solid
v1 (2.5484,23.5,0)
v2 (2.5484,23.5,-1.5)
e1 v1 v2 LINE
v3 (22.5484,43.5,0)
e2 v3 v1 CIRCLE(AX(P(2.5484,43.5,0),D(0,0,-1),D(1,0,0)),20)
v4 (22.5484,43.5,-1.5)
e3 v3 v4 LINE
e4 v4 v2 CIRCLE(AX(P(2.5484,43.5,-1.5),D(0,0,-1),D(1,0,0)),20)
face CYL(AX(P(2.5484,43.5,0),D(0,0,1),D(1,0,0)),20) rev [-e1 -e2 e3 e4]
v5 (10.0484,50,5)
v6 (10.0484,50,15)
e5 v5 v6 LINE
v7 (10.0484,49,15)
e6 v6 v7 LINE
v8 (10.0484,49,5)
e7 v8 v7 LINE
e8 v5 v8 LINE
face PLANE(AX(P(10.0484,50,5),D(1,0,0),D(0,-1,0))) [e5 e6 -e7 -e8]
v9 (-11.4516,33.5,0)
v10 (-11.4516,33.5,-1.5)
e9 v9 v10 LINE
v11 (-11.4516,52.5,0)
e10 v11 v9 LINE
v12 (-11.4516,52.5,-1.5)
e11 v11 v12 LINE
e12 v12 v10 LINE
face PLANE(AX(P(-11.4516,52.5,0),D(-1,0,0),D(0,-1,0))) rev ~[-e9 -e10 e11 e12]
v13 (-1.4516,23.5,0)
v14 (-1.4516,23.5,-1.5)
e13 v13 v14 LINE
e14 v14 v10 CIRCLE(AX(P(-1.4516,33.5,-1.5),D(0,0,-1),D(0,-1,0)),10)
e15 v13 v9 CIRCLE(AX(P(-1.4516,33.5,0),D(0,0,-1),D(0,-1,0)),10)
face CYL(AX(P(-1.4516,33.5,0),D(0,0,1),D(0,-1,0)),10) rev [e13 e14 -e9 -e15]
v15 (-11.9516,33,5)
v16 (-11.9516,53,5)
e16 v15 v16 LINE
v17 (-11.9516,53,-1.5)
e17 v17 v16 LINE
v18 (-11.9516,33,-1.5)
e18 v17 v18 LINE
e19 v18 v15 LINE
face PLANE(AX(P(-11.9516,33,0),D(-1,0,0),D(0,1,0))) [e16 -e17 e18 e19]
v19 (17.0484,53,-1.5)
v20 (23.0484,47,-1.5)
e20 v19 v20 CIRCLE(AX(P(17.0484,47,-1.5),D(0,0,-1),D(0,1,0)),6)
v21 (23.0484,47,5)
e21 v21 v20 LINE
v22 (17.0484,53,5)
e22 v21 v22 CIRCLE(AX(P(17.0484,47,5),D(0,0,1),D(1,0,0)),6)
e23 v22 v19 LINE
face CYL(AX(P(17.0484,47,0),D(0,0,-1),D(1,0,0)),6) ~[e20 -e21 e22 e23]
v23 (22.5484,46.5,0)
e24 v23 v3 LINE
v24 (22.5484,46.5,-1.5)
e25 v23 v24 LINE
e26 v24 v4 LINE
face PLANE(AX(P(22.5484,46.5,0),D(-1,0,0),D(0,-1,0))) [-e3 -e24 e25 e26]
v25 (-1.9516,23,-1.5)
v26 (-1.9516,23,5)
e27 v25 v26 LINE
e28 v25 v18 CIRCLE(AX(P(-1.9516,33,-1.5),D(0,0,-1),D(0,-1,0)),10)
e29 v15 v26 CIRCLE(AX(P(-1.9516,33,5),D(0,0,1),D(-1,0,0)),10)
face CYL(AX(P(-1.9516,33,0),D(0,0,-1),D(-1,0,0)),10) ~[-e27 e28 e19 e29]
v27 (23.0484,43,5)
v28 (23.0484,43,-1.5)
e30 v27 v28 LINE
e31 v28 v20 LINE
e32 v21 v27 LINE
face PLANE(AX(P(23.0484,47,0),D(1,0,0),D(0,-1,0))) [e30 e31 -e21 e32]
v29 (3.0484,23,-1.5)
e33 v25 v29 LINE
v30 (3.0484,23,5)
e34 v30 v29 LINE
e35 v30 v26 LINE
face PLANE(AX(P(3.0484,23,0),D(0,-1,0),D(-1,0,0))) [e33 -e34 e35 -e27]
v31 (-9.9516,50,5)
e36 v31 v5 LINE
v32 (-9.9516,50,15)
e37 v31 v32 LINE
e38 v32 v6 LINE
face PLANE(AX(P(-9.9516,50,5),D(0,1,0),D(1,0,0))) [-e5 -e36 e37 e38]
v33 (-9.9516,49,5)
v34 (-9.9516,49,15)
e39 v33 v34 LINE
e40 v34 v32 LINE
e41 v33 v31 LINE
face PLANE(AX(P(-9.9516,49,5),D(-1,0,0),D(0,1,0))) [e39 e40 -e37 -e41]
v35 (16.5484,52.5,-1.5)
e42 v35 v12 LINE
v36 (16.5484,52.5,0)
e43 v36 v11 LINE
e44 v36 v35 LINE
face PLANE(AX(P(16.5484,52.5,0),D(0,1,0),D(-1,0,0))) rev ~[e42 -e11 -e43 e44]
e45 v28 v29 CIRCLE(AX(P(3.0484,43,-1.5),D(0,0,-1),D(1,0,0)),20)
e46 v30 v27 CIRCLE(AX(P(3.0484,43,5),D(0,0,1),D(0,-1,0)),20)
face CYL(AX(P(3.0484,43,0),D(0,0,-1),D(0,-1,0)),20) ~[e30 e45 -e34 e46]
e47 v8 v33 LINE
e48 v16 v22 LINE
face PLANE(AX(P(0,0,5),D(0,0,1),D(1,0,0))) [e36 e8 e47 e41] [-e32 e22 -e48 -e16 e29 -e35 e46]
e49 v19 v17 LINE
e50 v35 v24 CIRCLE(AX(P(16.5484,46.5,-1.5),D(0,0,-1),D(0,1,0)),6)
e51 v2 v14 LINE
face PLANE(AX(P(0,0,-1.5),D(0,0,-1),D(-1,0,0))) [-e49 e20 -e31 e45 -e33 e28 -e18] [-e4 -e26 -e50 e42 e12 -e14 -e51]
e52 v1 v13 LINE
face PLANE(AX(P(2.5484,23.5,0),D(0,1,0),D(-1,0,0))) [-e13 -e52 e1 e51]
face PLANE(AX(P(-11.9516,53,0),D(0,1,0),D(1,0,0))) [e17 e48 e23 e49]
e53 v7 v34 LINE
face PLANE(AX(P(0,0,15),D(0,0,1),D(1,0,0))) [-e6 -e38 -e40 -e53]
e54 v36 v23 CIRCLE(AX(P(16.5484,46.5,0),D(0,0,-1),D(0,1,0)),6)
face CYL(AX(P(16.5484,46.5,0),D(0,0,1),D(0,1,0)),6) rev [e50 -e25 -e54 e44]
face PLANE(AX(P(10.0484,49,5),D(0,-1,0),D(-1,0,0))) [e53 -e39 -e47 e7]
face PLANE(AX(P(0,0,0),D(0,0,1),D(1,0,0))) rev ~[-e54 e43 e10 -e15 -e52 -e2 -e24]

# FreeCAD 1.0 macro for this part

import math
import FreeCAD as App
import Part
import Sketcher
Q = App.Units.Quantity

doc = App.newDocument("Part")
params = doc.addObject("Spreadsheet::Sheet", "Params")
for row, (alias, value) in enumerate([
    ("sketch1_radius", "10 mm"),
    ("sketch1_radius2", "20 mm"),
    ("sketch1_radius3", "6 mm"),
    ("sketch1_height", "20 mm"),
    ("sketch1_width", "29 mm"),
    ("pad1_length", "5 mm"),
    ("sketch2_radius", "6 mm"),
    ("sketch2_radius2", "20 mm"),
    ("sketch2_radius3", "10 mm"),
    ("sketch2_height", "20 mm"),
    ("pad2_length", "1.5 mm"),
    ("sketch3_width", "20 mm"),
    ("sketch3_height", "1 mm"),
    ("pad3_length", "10 mm"),
], start=1):
    params.set(f"A{row}", alias)
    params.set(f"B{row}", "=" + value)
    params.setAlias(f"B{row}", alias)

body = doc.addObject("PartDesign::Body", "Body")

# Sketch on XY plane
sketch1 = body.newObject("Sketcher::SketchObject", "Sketch")
sketch1.AttachmentSupport = (doc.getObject("XY_Plane"), [""])
sketch1.MapMode = "FlatFace"
sketch1.addGeometry([
    Part.LineSegment(App.Vector(17.0484, 53, 0), App.Vector(-11.9516, 53, 0)),  # 0
    Part.LineSegment(App.Vector(-11.9516, 53, 0), App.Vector(-11.9516, 33, 0)),  # 1
    Part.ArcOfCircle(Part.Circle(App.Vector(-1.9516, 33, 0), App.Vector(0, 0, 1), 10), math.radians(180), math.radians(270)),  # 2
    Part.LineSegment(App.Vector(-1.9516, 23, 0), App.Vector(3.0484, 23, 0)),  # 3
    Part.ArcOfCircle(Part.Circle(App.Vector(3.0484, 43, 0), App.Vector(0, 0, 1), 20), math.radians(-90), math.radians(0)),  # 4
    Part.LineSegment(App.Vector(23.0484, 43, 0), App.Vector(23.0484, 47, 0)),  # 5
    Part.ArcOfCircle(Part.Circle(App.Vector(17.0484, 47, 0), App.Vector(0, 0, 1), 6), math.radians(0), math.radians(90)),  # 6
], False)
sketch1.addConstraint([
    Sketcher.Constraint("Coincident", 0, 2, 1, 1),
    Sketcher.Constraint("Tangent", 1, 2, 2, 1),
    Sketcher.Constraint("Tangent", 2, 2, 3, 1),
    Sketcher.Constraint("Tangent", 3, 2, 4, 1),
    Sketcher.Constraint("Tangent", 4, 2, 5, 1),
    Sketcher.Constraint("Tangent", 5, 2, 6, 1),
    Sketcher.Constraint("Tangent", 6, 2, 0, 1),
    Sketcher.Constraint("Horizontal", 0),
    Sketcher.Constraint("Vertical", 1),
    Sketcher.Constraint("Horizontal", 3),
    Sketcher.Constraint("Vertical", 5),
    Sketcher.Constraint("Radius", 2, Q("10 mm")),
    Sketcher.Constraint("Radius", 4, Q("20 mm")),
    Sketcher.Constraint("Radius", 6, Q("6 mm")),
    Sketcher.Constraint("DistanceY", 1, 2, 1, 1, Q("20 mm")),
    Sketcher.Constraint("DistanceX", 0, 2, 0, 1, Q("29 mm")),
    Sketcher.Constraint("DistanceY", -1, 1, 2, 3, Q("33 mm")),
    Sketcher.Constraint("DistanceX", 2, 3, -1, 1, Q("1.9516 mm")),
])
sketch1.setExpression("Constraints[11]", "Params.sketch1_radius")
sketch1.setExpression("Constraints[12]", "Params.sketch1_radius2")
sketch1.setExpression("Constraints[13]", "Params.sketch1_radius3")
sketch1.setExpression("Constraints[14]", "Params.sketch1_height")
sketch1.setExpression("Constraints[15]", "Params.sketch1_width")
pad1 = body.newObject("PartDesign::Pad", "Pad")
pad1.Profile = sketch1
pad1.setExpression("Length", "Params.pad1_length")

# Sketch on XY plane
sketch2 = body.newObject("Sketcher::SketchObject", "Sketch001")
sketch2.AttachmentSupport = (doc.getObject("XY_Plane"), [""])
sketch2.MapMode = "FlatFace"
sketch2.addGeometry([
    Part.LineSegment(App.Vector(-11.9516, 53, 0), App.Vector(17.0484, 53, 0)),  # 0
    Part.ArcOfCircle(Part.Circle(App.Vector(17.0484, 47, 0), App.Vector(0, 0, 1), 6), math.radians(0), math.radians(90)),  # 1
    Part.LineSegment(App.Vector(23.0484, 47, 0), App.Vector(23.0484, 43, 0)),  # 2
    Part.ArcOfCircle(Part.Circle(App.Vector(3.0484, 43, 0), App.Vector(0, 0, 1), 20), math.radians(-90), math.radians(0)),  # 3
    Part.LineSegment(App.Vector(3.0484, 23, 0), App.Vector(-1.9516, 23, 0)),  # 4
    Part.ArcOfCircle(Part.Circle(App.Vector(-1.9516, 33, 0), App.Vector(0, 0, 1), 10), math.radians(180), math.radians(270)),  # 5
    Part.LineSegment(App.Vector(-11.9516, 33, 0), App.Vector(-11.9516, 53, 0)),  # 6
    Part.LineSegment(App.Vector(16.5484, 52.5, 0), App.Vector(-11.4516, 52.5, 0)),  # 7
    Part.LineSegment(App.Vector(-11.4516, 52.5, 0), App.Vector(-11.4516, 33.5, 0)),  # 8
    Part.ArcOfCircle(Part.Circle(App.Vector(-1.4516, 33.5, 0), App.Vector(0, 0, 1), 10), math.radians(180), math.radians(270)),  # 9
    Part.LineSegment(App.Vector(-1.4516, 23.5, 0), App.Vector(2.5484, 23.5, 0)),  # 10
    Part.ArcOfCircle(Part.Circle(App.Vector(2.5484, 43.5, 0), App.Vector(0, 0, 1), 20), math.radians(-90), math.radians(0)),  # 11
    Part.LineSegment(App.Vector(22.5484, 43.5, 0), App.Vector(22.5484, 46.5, 0)),  # 12
    Part.ArcOfCircle(Part.Circle(App.Vector(16.5484, 46.5, 0), App.Vector(0, 0, 1), 6), math.radians(0), math.radians(90)),  # 13
], False)
sketch2.addConstraint([
    Sketcher.Constraint("Tangent", 0, 2, 1, 2),
    Sketcher.Constraint("Tangent", 1, 1, 2, 1),
    Sketcher.Constraint("Tangent", 2, 2, 3, 2),
    Sketcher.Constraint("Tangent", 3, 1, 4, 1),
    Sketcher.Constraint("Tangent", 4, 2, 5, 2),
    Sketcher.Constraint("Tangent", 5, 1, 6, 1),
    Sketcher.Constraint("Coincident", 6, 2, 0, 1),
    Sketcher.Constraint("Coincident", 7, 2, 8, 1),
    Sketcher.Constraint("Tangent", 8, 2, 9, 1),
    Sketcher.Constraint("Tangent", 9, 2, 10, 1),
    Sketcher.Constraint("Tangent", 10, 2, 11, 1),
    Sketcher.Constraint("Tangent", 11, 2, 12, 1),
    Sketcher.Constraint("Tangent", 12, 2, 13, 1),
    Sketcher.Constraint("Tangent", 13, 2, 7, 1),
    Sketcher.Constraint("Horizontal", 0),
    Sketcher.Constraint("Vertical", 2),
    Sketcher.Constraint("Horizontal", 4),
    Sketcher.Constraint("Vertical", 6),
    Sketcher.Constraint("Horizontal", 7),
    Sketcher.Constraint("Vertical", 8),
    Sketcher.Constraint("Horizontal", 10),
    Sketcher.Constraint("Vertical", 12),
    Sketcher.Constraint("Equal", 5, 9),
    Sketcher.Constraint("Equal", 3, 11),
    Sketcher.Constraint("Equal", 1, 13),
    Sketcher.Constraint("Equal", 10, 2),
    Sketcher.Constraint("Radius", 1, Q("6 mm")),
    Sketcher.Constraint("Radius", 3, Q("20 mm")),
    Sketcher.Constraint("Radius", 5, Q("10 mm")),
    Sketcher.Constraint("DistanceY", 6, 1, 6, 2, Q("20 mm")),
    Sketcher.Constraint("DistanceX", 5, 3, 9, 3, Q("0.5 mm")),
    Sketcher.Constraint("DistanceY", 5, 3, 9, 3, Q("0.5 mm")),
    Sketcher.Constraint("DistanceX", 11, 3, 3, 3, Q("0.5 mm")),
    Sketcher.Constraint("DistanceY", 13, 3, 1, 3, Q("0.5 mm")),
    Sketcher.Constraint("DistanceY", -1, 1, 1, 3, Q("47 mm")),
    Sketcher.Constraint("DistanceX", -1, 1, 1, 3, Q("17.0484 mm")),
])
sketch2.setExpression("Constraints[26]", "Params.sketch2_radius")
sketch2.setExpression("Constraints[27]", "Params.sketch2_radius2")
sketch2.setExpression("Constraints[28]", "Params.sketch2_radius3")
sketch2.setExpression("Constraints[29]", "Params.sketch2_height")
pad2 = body.newObject("PartDesign::Pad", "Pad001")
pad2.Profile = sketch2
pad2.setExpression("Length", "Params.pad2_length")
pad2.Reversed = True

# Sketch on XY plane
sketch3 = body.newObject("Sketcher::SketchObject", "Sketch002")
sketch3.AttachmentSupport = (doc.getObject("XY_Plane"), [""])
sketch3.MapMode = "FlatFace"
sketch3.AttachmentOffset = App.Placement(App.Vector(0, 0, 5), App.Rotation())
sketch3.addGeometry([
    Part.LineSegment(App.Vector(10.0484, 50, 0), App.Vector(-9.9516, 50, 0)),
    Part.LineSegment(App.Vector(-9.9516, 50, 0), App.Vector(-9.9516, 49, 0)),
    Part.LineSegment(App.Vector(-9.9516, 49, 0), App.Vector(10.0484, 49, 0)),
    Part.LineSegment(App.Vector(10.0484, 49, 0), App.Vector(10.0484, 50, 0)),
], False)
sketch3.addConstraint([
    Sketcher.Constraint("Coincident", 0, 2, 1, 1),
    Sketcher.Constraint("Coincident", 1, 2, 2, 1),
    Sketcher.Constraint("Coincident", 2, 2, 3, 1),
    Sketcher.Constraint("Coincident", 3, 2, 0, 1),
    Sketcher.Constraint("Horizontal", 0),
    Sketcher.Constraint("Vertical", 1),
    Sketcher.Constraint("Horizontal", 2),
    Sketcher.Constraint("Vertical", 3),
    Sketcher.Constraint("DistanceX", 0, 2, 0, 1, Q("20 mm")),
    Sketcher.Constraint("DistanceY", 1, 2, 1, 1, Q("1 mm")),
    Sketcher.Constraint("DistanceY", -1, 1, 0, 2, Q("50 mm")),
    Sketcher.Constraint("DistanceX", 0, 2, -1, 1, Q("9.9516 mm")),
])
sketch3.setExpression("Constraints[8]", "Params.sketch3_width")
sketch3.setExpression("Constraints[9]", "Params.sketch3_height")
pad3 = body.newObject("PartDesign::Pad", "Pad002")
pad3.Profile = sketch3
pad3.setExpression("Length", "Params.pad3_length")

doc.recompute()
